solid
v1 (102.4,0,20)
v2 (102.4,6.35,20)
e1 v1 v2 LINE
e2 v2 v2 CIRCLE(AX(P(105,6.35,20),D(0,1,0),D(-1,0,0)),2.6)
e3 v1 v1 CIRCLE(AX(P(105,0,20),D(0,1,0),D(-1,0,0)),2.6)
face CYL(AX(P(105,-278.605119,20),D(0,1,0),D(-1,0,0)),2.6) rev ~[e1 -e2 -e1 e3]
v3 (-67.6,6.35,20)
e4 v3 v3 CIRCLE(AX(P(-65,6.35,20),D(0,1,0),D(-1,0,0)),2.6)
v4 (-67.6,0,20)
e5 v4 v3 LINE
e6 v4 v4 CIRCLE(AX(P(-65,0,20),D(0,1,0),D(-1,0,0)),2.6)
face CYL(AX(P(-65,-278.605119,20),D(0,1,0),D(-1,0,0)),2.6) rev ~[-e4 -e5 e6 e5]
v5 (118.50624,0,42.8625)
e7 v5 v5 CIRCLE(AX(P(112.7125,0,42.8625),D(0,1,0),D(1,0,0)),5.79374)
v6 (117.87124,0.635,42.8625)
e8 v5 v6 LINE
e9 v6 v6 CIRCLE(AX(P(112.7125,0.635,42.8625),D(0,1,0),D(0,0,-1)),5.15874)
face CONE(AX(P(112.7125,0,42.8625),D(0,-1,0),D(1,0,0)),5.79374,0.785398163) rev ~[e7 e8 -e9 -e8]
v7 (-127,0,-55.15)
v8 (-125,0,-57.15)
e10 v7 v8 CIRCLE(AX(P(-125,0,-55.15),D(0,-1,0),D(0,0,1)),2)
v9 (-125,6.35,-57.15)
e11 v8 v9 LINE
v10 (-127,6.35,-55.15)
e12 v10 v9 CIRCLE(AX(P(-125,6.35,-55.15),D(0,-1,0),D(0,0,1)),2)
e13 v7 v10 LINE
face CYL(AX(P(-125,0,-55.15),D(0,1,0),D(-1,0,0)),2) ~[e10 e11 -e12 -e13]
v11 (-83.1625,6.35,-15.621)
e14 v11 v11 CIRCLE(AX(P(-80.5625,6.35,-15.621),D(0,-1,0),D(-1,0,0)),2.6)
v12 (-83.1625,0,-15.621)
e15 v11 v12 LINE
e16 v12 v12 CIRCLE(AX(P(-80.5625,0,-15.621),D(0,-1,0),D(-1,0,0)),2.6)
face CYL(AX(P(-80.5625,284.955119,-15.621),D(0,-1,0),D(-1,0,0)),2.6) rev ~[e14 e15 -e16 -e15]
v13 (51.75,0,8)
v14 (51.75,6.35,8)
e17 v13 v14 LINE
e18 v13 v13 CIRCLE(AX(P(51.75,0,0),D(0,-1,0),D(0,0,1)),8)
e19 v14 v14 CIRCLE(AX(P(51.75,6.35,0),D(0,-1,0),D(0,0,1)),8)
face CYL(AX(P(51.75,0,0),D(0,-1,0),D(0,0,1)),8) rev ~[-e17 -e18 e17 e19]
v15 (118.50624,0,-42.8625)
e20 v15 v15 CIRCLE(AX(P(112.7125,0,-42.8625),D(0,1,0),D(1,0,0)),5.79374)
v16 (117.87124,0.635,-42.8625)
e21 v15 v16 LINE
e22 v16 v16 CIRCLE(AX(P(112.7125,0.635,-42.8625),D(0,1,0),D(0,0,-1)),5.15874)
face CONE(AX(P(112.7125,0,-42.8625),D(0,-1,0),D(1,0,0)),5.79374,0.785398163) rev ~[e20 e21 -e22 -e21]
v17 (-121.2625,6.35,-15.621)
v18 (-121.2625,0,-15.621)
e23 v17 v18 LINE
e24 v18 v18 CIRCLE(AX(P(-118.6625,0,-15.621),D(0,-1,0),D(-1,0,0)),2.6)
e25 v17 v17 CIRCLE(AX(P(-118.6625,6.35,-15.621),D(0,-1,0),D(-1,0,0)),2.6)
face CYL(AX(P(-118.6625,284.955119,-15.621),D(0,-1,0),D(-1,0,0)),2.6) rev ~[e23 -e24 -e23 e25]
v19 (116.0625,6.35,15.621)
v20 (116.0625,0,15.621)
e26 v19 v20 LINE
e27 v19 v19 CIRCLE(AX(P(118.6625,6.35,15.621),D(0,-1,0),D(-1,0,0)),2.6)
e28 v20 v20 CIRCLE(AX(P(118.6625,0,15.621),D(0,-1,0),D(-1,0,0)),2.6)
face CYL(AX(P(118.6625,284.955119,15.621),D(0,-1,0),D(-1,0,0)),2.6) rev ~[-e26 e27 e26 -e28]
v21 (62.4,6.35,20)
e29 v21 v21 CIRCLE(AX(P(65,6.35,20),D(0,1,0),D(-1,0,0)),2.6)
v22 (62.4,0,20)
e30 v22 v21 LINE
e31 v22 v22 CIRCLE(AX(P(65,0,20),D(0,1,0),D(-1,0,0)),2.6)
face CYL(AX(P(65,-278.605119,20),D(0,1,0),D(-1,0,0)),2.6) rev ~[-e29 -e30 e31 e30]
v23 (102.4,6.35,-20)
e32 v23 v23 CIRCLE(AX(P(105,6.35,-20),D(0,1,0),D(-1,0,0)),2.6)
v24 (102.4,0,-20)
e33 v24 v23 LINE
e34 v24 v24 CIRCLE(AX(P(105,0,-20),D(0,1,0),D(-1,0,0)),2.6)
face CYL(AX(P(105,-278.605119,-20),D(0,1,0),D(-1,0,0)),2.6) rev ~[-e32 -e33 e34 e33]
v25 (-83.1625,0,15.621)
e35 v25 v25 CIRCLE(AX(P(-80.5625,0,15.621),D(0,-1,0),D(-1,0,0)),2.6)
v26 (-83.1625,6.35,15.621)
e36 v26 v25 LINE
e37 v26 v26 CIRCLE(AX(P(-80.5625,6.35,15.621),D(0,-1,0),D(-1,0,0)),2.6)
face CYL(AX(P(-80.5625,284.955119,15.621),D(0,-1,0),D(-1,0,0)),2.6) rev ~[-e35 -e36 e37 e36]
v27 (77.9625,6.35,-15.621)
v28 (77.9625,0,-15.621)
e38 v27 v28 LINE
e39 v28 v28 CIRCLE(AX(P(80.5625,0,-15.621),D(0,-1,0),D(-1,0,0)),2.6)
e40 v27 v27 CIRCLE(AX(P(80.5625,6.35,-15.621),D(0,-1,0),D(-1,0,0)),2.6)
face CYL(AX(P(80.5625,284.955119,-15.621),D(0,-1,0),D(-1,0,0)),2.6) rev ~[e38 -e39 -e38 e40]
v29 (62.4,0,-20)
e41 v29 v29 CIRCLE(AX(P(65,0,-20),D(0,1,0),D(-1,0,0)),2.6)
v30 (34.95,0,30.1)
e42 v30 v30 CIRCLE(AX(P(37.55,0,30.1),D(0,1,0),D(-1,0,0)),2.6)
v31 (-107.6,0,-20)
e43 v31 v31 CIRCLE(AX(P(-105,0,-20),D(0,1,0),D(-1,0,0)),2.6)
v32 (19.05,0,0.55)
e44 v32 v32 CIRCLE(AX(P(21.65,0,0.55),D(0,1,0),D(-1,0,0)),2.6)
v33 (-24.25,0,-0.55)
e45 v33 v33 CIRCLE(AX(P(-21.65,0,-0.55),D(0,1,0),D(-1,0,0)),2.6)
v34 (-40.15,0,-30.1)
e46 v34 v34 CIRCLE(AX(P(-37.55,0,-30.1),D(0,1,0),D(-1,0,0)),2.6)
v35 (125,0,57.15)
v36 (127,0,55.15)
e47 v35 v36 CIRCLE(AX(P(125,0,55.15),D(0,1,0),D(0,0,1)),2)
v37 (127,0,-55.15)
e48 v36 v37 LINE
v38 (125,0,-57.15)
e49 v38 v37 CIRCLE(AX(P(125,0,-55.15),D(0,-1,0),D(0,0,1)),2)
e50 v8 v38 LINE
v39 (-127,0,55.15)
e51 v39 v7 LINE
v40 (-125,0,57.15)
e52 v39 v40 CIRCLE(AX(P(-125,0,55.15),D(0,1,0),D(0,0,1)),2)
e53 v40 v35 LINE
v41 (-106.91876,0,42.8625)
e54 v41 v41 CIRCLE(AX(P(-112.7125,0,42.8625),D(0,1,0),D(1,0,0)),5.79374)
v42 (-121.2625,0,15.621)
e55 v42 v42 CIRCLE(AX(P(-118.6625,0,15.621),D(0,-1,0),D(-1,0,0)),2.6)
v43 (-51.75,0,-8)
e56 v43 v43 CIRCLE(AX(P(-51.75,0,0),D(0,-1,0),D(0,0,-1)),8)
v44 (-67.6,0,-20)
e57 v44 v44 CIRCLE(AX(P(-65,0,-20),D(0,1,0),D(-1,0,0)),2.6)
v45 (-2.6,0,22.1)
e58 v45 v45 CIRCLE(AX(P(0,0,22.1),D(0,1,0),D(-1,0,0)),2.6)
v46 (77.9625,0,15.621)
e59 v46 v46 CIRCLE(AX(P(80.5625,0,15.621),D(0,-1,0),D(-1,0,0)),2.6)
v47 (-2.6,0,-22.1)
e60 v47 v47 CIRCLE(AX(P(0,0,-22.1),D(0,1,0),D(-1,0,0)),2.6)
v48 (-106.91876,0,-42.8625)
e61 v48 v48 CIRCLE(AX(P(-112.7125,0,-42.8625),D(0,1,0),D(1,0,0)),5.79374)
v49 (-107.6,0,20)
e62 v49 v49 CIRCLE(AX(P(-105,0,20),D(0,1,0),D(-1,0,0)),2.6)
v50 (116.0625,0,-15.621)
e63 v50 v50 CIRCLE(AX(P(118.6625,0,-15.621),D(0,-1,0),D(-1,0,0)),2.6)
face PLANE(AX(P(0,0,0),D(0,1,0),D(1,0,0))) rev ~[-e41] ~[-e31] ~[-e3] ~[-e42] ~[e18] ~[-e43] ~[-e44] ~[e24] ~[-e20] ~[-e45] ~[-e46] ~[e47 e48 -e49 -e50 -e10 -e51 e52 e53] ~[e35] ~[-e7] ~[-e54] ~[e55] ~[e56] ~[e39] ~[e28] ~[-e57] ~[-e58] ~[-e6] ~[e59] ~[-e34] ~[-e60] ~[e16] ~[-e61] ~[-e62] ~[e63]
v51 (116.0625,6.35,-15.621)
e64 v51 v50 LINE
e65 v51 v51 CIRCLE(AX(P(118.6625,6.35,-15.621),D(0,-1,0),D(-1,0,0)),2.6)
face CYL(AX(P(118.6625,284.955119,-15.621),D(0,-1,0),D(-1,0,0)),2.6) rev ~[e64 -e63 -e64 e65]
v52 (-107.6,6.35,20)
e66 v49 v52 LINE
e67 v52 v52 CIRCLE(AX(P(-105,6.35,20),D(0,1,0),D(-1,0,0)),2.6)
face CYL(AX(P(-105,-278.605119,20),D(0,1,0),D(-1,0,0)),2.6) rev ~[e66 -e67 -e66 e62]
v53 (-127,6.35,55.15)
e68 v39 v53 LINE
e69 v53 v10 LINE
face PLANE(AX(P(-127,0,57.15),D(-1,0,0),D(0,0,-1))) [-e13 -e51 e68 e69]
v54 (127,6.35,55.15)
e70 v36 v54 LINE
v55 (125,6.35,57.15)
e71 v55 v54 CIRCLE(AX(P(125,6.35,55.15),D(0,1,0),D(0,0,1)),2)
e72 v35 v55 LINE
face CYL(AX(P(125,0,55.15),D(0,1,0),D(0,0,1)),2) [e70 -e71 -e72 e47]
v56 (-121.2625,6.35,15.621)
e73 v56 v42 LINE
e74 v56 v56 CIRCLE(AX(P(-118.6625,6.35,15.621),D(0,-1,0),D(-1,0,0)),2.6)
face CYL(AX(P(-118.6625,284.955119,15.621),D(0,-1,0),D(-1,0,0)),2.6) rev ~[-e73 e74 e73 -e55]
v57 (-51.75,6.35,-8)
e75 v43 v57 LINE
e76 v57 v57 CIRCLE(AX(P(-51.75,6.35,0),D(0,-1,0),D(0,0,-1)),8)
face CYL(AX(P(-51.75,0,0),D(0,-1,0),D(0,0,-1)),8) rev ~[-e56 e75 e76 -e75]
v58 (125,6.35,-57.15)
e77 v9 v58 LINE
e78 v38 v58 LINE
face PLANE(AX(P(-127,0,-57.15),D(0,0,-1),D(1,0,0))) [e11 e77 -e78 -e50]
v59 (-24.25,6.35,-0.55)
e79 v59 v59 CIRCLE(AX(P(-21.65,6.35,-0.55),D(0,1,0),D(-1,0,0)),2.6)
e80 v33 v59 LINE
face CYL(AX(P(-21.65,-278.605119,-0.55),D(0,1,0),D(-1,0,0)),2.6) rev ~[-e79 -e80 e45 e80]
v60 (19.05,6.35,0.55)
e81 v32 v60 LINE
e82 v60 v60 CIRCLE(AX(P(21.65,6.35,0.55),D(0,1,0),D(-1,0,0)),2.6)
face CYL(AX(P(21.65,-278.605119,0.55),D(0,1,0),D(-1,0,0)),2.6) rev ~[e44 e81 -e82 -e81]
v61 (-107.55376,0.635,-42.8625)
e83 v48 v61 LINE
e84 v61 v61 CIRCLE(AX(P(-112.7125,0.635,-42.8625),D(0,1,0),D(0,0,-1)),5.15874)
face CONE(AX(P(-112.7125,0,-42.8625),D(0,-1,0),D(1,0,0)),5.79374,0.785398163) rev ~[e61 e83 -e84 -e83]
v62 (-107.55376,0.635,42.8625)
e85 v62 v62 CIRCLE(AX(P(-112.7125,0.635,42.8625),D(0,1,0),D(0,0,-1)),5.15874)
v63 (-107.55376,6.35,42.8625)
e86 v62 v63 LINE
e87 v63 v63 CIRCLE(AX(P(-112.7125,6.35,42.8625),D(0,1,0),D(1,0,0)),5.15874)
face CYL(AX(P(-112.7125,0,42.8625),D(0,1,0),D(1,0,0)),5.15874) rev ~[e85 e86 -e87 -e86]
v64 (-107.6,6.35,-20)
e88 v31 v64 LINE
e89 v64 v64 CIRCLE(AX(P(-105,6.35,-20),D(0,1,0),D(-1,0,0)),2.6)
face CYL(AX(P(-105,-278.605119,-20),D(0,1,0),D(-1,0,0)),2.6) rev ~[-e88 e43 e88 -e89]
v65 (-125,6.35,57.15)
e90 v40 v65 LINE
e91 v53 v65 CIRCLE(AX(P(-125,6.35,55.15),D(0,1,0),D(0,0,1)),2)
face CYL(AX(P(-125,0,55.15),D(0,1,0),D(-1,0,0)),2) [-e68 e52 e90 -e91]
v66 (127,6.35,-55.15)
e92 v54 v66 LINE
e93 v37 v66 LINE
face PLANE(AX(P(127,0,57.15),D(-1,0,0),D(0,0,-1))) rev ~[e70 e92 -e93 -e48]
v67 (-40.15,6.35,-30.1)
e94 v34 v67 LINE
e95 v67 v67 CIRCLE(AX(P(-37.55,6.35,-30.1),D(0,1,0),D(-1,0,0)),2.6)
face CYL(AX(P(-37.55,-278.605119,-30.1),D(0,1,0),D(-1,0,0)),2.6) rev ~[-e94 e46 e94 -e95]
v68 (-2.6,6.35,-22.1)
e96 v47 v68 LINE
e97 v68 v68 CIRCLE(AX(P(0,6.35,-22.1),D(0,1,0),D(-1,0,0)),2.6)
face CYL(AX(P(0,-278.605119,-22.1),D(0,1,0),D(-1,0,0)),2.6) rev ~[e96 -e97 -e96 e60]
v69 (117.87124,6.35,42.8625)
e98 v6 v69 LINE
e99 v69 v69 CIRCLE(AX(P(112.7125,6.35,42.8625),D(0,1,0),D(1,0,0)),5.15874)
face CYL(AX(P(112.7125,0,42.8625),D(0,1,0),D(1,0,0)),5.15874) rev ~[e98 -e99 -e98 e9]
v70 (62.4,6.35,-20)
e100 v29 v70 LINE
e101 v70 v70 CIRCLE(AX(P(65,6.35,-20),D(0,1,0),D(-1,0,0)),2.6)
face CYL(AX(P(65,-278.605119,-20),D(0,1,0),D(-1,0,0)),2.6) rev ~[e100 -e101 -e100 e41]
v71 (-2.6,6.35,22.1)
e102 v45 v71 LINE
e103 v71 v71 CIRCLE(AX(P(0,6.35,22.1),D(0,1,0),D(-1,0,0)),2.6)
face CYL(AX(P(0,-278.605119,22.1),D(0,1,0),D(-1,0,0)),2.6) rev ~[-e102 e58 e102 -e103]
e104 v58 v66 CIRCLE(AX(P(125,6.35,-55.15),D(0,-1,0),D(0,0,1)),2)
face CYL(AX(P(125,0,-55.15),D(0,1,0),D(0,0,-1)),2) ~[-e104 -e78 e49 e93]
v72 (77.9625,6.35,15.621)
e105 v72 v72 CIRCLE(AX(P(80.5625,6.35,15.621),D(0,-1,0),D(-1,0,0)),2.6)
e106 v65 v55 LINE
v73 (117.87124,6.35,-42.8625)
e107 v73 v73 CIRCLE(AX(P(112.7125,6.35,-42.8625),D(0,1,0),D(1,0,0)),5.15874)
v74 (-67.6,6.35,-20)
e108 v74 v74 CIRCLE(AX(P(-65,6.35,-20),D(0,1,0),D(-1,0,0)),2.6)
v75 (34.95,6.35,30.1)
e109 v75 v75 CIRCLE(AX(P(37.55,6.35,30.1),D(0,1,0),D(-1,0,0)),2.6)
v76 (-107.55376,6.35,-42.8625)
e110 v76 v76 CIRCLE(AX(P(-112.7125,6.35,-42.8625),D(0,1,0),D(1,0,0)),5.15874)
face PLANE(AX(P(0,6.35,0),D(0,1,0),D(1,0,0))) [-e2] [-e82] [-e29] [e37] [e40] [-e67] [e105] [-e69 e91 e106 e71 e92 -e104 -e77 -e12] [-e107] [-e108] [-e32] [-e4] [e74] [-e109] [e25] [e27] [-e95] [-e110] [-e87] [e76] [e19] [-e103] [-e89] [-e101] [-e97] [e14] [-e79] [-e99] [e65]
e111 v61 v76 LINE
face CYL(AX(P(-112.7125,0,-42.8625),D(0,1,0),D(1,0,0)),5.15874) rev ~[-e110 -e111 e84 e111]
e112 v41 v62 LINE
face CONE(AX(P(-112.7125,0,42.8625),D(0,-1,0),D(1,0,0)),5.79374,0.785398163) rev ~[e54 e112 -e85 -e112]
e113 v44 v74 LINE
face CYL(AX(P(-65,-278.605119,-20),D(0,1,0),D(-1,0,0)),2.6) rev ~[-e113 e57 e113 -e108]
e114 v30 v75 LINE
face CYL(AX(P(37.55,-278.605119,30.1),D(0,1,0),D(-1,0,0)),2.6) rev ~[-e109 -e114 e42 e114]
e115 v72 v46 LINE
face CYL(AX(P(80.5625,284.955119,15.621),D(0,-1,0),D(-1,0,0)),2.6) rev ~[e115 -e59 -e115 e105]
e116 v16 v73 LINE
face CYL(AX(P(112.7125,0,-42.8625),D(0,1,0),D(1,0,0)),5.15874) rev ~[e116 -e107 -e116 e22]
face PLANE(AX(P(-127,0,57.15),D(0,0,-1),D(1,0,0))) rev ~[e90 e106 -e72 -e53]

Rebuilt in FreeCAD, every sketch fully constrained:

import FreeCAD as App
import Part
import Sketcher
from FreeCAD import Vector


def edges_at(feature, points):
    """Names of the edges that pass closest to the given points."""
    edges = feature.Shape.Edges
    near = lambda p: min(range(len(edges)), key=lambda i: edges[i].distToShape(Part.Vertex(*p))[0])
    return sorted({f"Edge{near(p) + 1}" for p in points})


def add_polygon(sketch, points):
    """Adds a closed chain of lines whose ends are joined by coincident constraints."""
    first, n = sketch.GeometryCount, len(points)
    for a, b in zip(points, points[1:] + points[:1]):
        sketch.addGeometry(Part.LineSegment(App.Vector(*a, 0), App.Vector(*b, 0)), False)
    for i in range(n):
        sketch.addConstraint(Sketcher.Constraint("Coincident", first + i, 2, first + (i + 1) % n, 1))

doc = App.newDocument("Part")
body = doc.addObject("PartDesign::Body", "Body")

sketch1 = body.newObject("Sketcher::SketchObject", "Sketch")
sketch1.AttachmentSupport = (doc.getObject("XZ_Plane"), [""])
sketch1.MapMode = "FlatFace"
add_polygon(sketch1, [(-127, -57.15), (-127, 57.15), (127, 57.15), (127, -57.15)])
sketch1.addConstraint([
    Sketcher.Constraint("Vertical", 0),
    Sketcher.Constraint("Horizontal", 1),
    Sketcher.Constraint("Vertical", 2),
    Sketcher.Constraint("Horizontal", 3),
    Sketcher.Constraint("Symmetric", 0, 2, 2, 2, -1, 1),
    Sketcher.Constraint("DistanceX", 1, 1, 1, 2, 254.0),
    Sketcher.Constraint("DistanceY", 0, 1, 0, 2, 114.3),
])
pad1 = body.newObject("PartDesign::Pad", "Pad")
pad1.Profile = sketch1
pad1.Length = 6.35
pad1.Reversed = True

sketch2 = body.newObject("Sketcher::SketchObject", "Sketch001")
sketch2.AttachmentSupport = (doc.getObject("XZ_Plane"), [""])
sketch2.MapMode = "FlatFace"
sketch2.AttachmentOffset = App.Placement(Vector(0, 0, -6.35), App.Rotation())
sketch2.addGeometry([
    Part.Circle(Vector(-80.5625, 15.621, 0), Vector(0, 0, 1), 2.6),
    Part.Circle(Vector(-80.5625, -15.621, 0), Vector(0, 0, 1), 2.6),
    Part.Circle(Vector(-118.6625, 15.621, 0), Vector(0, 0, 1), 2.6),
    Part.Circle(Vector(-118.6625, -15.621, 0), Vector(0, 0, 1), 2.6),
    Part.Circle(Vector(118.6625, 15.621, 0), Vector(0, 0, 1), 2.6),
    Part.Circle(Vector(80.5625, 15.621, 0), Vector(0, 0, 1), 2.6),
    Part.Circle(Vector(80.5625, -15.621, 0), Vector(0, 0, 1), 2.6),
    Part.Circle(Vector(118.6625, -15.621, 0), Vector(0, 0, 1), 2.6),
], False)
sketch2.addConstraint([
    Sketcher.Constraint("Equal", 0, 1),
    Sketcher.Constraint("Equal", 1, 2),
    Sketcher.Constraint("Equal", 2, 3),
    Sketcher.Constraint("Equal", 3, 4),
    Sketcher.Constraint("Equal", 4, 5),
    Sketcher.Constraint("Equal", 5, 6),
    Sketcher.Constraint("Equal", 6, 7),
    Sketcher.Constraint("Symmetric", 3, 3, 4, 3, -1, 1),
    Sketcher.Constraint("Symmetric", 1, 3, 5, 3, -1, 1),
    Sketcher.Constraint("Symmetric", 0, 3, 6, 3, -1, 1),
    Sketcher.Constraint("Symmetric", 2, 3, 7, 3, -1, 1),
    Sketcher.Constraint("Symmetric", 2, 3, 4, 3, -2),
    Sketcher.Constraint("Symmetric", 0, 3, 5, 3, -2),
    Sketcher.Constraint("Horizontal", 0, 3, 2, 3),
    Sketcher.Constraint("Diameter", 0, 5.2),
    Sketcher.Constraint("DistanceX", 2, 3, 0, 3, 38.1),
    Sketcher.Constraint("DistanceY", -1, 1, 0, 3, 15.621),
    Sketcher.Constraint("DistanceX", 0, 3, 4, 3, 199.225),
])
doc.recompute()
hole = body.newObject("PartDesign::Hole", "Hole")
hole.Profile = sketch2
hole.ThreadType = "None"
hole.Diameter = 5.2
hole.DepthType = "ThroughAll"
hole.Reversed = True

sketch3 = body.newObject("Sketcher::SketchObject", "Sketch002")
sketch3.AttachmentSupport = (doc.getObject("XZ_Plane"), [""])
sketch3.MapMode = "FlatFace"
sketch3.addGeometry([
    Part.Circle(Vector(112.7125, -42.8625, 0), Vector(0, 0, 1), 5.15874),
    Part.Circle(Vector(112.7125, 42.8625, 0), Vector(0, 0, 1), 5.15874),
    Part.Circle(Vector(-112.7125, 42.8625, 0), Vector(0, 0, 1), 5.15874),
    Part.Circle(Vector(-112.7125, -42.8625, 0), Vector(0, 0, 1), 5.15874),
], False)
sketch3.addConstraint([
    Sketcher.Constraint("Equal", 0, 1),
    Sketcher.Constraint("Equal", 1, 2),
    Sketcher.Constraint("Equal", 2, 3),
    Sketcher.Constraint("Symmetric", 0, 3, 2, 3, -1, 1),
    Sketcher.Constraint("Symmetric", 1, 3, 3, 3, -1, 1),
    Sketcher.Constraint("Symmetric", 1, 3, 2, 3, -2),
    Sketcher.Constraint("Diameter", 0, 10.31748),
    Sketcher.Constraint("DistanceY", 0, 3, 1, 3, 85.725),
    Sketcher.Constraint("DistanceX", 2, 3, 1, 3, 225.425),
])
doc.recompute()
hole2 = body.newObject("PartDesign::Hole", "Hole001")
hole2.Profile = sketch3
hole2.ThreadType = "None"
hole2.Diameter = 10.31748
hole2.DepthType = "ThroughAll"
hole2.HoleCutType = "Countersink"
hole2.HoleCutDiameter = 11.58748
hole2.HoleCutCountersinkAngle = 90

sketch4 = body.newObject("Sketcher::SketchObject", "Sketch003")
sketch4.AttachmentSupport = (doc.getObject("XZ_Plane"), [""])
sketch4.MapMode = "FlatFace"
sketch4.addGeometry([
    Part.Circle(Vector(105, 20, 0), Vector(0, 0, 1), 2.6),
    Part.Circle(Vector(65, -20, 0), Vector(0, 0, 1), 2.6),
    Part.Circle(Vector(105, -20, 0), Vector(0, 0, 1), 2.6),
    Part.Circle(Vector(65, 20, 0), Vector(0, 0, 1), 2.6),
    Part.Circle(Vector(-65, -20, 0), Vector(0, 0, 1), 2.6),
    Part.Circle(Vector(-65, 20, 0), Vector(0, 0, 1), 2.6),
    Part.Circle(Vector(-105, 20, 0), Vector(0, 0, 1), 2.6),
    Part.Circle(Vector(-105, -20, 0), Vector(0, 0, 1), 2.6),
], False)
sketch4.addConstraint([
    Sketcher.Constraint("Equal", 0, 1),
    Sketcher.Constraint("Equal", 1, 2),
    Sketcher.Constraint("Equal", 2, 3),
    Sketcher.Constraint("Equal", 3, 4),
    Sketcher.Constraint("Equal", 4, 5),
    Sketcher.Constraint("Equal", 5, 6),
    Sketcher.Constraint("Equal", 6, 7),
    Sketcher.Constraint("Symmetric", 3, 3, 4, 3, -1, 1),
    Sketcher.Constraint("Symmetric", 1, 3, 5, 3, -1, 1),
    Sketcher.Constraint("Symmetric", 2, 3, 6, 3, -1, 1),
    Sketcher.Constraint("Symmetric", 0, 3, 7, 3, -1, 1),
    Sketcher.Constraint("Symmetric", 1, 3, 4, 3, -2),
    Sketcher.Constraint("Symmetric", 0, 3, 6, 3, -2),
    Sketcher.Constraint("Horizontal", 1, 3, 2, 3),
    Sketcher.Constraint("Diameter", 0, 5.2),
    Sketcher.Constraint("DistanceX", -1, 1, 0, 3, 105.0),
    Sketcher.Constraint("DistanceY", -1, 1, 0, 3, 20.0),
    Sketcher.Constraint("DistanceX", -1, 1, 1, 3, 65.0),
])
doc.recompute()
hole3 = body.newObject("PartDesign::Hole", "Hole002")
hole3.Profile = sketch4
hole3.ThreadType = "None"
hole3.Diameter = 5.2
hole3.DepthType = "ThroughAll"
doc.recompute()

fillet = body.newObject("PartDesign::Fillet", "Fillet")
fillet.Base = (hole3, edges_at(hole3, [
    (-127, 3.175, -57.15),
    (127, 3.175, -57.15),
    (127, 3.175, 57.15),
    (-127, 3.175, 57.15),
]))
fillet.Radius = 2

sketch5 = body.newObject("Sketcher::SketchObject", "Sketch004")
sketch5.AttachmentSupport = (doc.getObject("XZ_Plane"), [""])
sketch5.MapMode = "FlatFace"
sketch5.addGeometry([
    Part.Circle(Vector(0, -22.1, 0), Vector(0, 0, 1), 2.6),
    Part.Circle(Vector(-21.65, -0.55, 0), Vector(0, 0, 1), 2.6),
    Part.Circle(Vector(-37.55, -30.1, 0), Vector(0, 0, 1), 2.6),
    Part.Circle(Vector(37.55, 30.1, 0), Vector(0, 0, 1), 2.6),
    Part.Circle(Vector(21.65, 0.55, 0), Vector(0, 0, 1), 2.6),
    Part.Circle(Vector(0, 22.1, 0), Vector(0, 0, 1), 2.6),
], False)
sketch5.addConstraint([
    Sketcher.Constraint("Equal", 0, 1),
    Sketcher.Constraint("Equal", 1, 2),
    Sketcher.Constraint("Equal", 2, 3),
    Sketcher.Constraint("Equal", 3, 4),
    Sketcher.Constraint("Equal", 4, 5),
    Sketcher.Constraint("Symmetric", 2, 3, 3, 3, -1, 1),
    Sketcher.Constraint("Symmetric", 1, 3, 4, 3, -1, 1),
    Sketcher.Constraint("Symmetric", 0, 3, 5, 3, -1, 1),
    Sketcher.Constraint("PointOnObject", 0, 3, -2),
    Sketcher.Constraint("Diameter", 0, 5.2),
    Sketcher.Constraint("DistanceY", 2, 3, 0, 3, 8.0),
    Sketcher.Constraint("DistanceY", 0, 3, -1, 1, 22.1),
    Sketcher.Constraint("DistanceX", 2, 3, 1, 3, 15.9),
    Sketcher.Constraint("DistanceX", 1, 3, 3, 3, 59.2),
    Sketcher.Constraint("DistanceY", 1, 3, 4, 3, 1.1),
])
doc.recompute()
hole4 = body.newObject("PartDesign::Hole", "Hole003")
hole4.Profile = sketch5
hole4.ThreadType = "None"
hole4.Diameter = 5.2
hole4.DepthType = "ThroughAll"

sketch6 = body.newObject("Sketcher::SketchObject", "Sketch005")
sketch6.AttachmentSupport = (doc.getObject("XZ_Plane"), [""])
sketch6.MapMode = "FlatFace"
sketch6.addGeometry([
    Part.Circle(Vector(-51.75, 0, 0), Vector(0, 0, 1), 8),
    Part.Circle(Vector(51.75, 0, 0), Vector(0, 0, 1), 8),
], False)
sketch6.addConstraint([
    Sketcher.Constraint("Equal", 0, 1),
    Sketcher.Constraint("Symmetric", 0, 3, 1, 3, -1, 1),
    Sketcher.Constraint("PointOnObject", 0, 3, -1),
    Sketcher.Constraint("Diameter", 0, 16.0),
    Sketcher.Constraint("DistanceX", 0, 3, 1, 3, 103.5),
])
pocket1 = body.newObject("PartDesign::Pocket", "Pocket")
pocket1.Profile = sketch6
pocket1.Type = "ThroughAll"

doc.recompute()
